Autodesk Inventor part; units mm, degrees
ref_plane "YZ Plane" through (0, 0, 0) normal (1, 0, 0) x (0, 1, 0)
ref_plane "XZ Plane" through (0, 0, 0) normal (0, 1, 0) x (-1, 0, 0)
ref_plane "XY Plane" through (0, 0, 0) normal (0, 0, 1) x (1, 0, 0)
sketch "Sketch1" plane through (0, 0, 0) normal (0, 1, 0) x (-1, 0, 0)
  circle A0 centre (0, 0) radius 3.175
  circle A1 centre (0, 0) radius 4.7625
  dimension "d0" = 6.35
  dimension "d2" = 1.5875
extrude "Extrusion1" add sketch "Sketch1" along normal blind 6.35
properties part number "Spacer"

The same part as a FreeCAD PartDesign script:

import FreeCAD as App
import Part
import Sketcher
Q = App.Units.Quantity

doc = App.newDocument("Part")
body = doc.addObject("PartDesign::Body", "Body")

sketch1 = body.newObject("Sketcher::SketchObject", "Sketch")
sketch1.AttachmentSupport = (doc.getObject("XZ_Plane"), [""])
sketch1.MapMode = "FlatFace"
sketch1.addGeometry([
    Part.Circle(App.Vector(0, 0, 0), App.Vector(0, 0, 1), 4.8),
    Part.Circle(App.Vector(0, 0, 0), App.Vector(0, 0, 1), 3.2),
], False)
sketch1.addConstraint([
    Sketcher.Constraint("Coincident", 0, 3, -1, 1),
    Sketcher.Constraint("Coincident", 1, 3, -1, 1),
    Sketcher.Constraint("Diameter", 1, Q("0.25 in")),
    Sketcher.Constraint("Diameter", 0, Q("0.375 in")),
])
pad1 = body.newObject("PartDesign::Pad", "Pad")
pad1.Profile = sketch1
pad1.Length = Q("0.25 in")
pad1.Reversed = True

doc.recompute()
